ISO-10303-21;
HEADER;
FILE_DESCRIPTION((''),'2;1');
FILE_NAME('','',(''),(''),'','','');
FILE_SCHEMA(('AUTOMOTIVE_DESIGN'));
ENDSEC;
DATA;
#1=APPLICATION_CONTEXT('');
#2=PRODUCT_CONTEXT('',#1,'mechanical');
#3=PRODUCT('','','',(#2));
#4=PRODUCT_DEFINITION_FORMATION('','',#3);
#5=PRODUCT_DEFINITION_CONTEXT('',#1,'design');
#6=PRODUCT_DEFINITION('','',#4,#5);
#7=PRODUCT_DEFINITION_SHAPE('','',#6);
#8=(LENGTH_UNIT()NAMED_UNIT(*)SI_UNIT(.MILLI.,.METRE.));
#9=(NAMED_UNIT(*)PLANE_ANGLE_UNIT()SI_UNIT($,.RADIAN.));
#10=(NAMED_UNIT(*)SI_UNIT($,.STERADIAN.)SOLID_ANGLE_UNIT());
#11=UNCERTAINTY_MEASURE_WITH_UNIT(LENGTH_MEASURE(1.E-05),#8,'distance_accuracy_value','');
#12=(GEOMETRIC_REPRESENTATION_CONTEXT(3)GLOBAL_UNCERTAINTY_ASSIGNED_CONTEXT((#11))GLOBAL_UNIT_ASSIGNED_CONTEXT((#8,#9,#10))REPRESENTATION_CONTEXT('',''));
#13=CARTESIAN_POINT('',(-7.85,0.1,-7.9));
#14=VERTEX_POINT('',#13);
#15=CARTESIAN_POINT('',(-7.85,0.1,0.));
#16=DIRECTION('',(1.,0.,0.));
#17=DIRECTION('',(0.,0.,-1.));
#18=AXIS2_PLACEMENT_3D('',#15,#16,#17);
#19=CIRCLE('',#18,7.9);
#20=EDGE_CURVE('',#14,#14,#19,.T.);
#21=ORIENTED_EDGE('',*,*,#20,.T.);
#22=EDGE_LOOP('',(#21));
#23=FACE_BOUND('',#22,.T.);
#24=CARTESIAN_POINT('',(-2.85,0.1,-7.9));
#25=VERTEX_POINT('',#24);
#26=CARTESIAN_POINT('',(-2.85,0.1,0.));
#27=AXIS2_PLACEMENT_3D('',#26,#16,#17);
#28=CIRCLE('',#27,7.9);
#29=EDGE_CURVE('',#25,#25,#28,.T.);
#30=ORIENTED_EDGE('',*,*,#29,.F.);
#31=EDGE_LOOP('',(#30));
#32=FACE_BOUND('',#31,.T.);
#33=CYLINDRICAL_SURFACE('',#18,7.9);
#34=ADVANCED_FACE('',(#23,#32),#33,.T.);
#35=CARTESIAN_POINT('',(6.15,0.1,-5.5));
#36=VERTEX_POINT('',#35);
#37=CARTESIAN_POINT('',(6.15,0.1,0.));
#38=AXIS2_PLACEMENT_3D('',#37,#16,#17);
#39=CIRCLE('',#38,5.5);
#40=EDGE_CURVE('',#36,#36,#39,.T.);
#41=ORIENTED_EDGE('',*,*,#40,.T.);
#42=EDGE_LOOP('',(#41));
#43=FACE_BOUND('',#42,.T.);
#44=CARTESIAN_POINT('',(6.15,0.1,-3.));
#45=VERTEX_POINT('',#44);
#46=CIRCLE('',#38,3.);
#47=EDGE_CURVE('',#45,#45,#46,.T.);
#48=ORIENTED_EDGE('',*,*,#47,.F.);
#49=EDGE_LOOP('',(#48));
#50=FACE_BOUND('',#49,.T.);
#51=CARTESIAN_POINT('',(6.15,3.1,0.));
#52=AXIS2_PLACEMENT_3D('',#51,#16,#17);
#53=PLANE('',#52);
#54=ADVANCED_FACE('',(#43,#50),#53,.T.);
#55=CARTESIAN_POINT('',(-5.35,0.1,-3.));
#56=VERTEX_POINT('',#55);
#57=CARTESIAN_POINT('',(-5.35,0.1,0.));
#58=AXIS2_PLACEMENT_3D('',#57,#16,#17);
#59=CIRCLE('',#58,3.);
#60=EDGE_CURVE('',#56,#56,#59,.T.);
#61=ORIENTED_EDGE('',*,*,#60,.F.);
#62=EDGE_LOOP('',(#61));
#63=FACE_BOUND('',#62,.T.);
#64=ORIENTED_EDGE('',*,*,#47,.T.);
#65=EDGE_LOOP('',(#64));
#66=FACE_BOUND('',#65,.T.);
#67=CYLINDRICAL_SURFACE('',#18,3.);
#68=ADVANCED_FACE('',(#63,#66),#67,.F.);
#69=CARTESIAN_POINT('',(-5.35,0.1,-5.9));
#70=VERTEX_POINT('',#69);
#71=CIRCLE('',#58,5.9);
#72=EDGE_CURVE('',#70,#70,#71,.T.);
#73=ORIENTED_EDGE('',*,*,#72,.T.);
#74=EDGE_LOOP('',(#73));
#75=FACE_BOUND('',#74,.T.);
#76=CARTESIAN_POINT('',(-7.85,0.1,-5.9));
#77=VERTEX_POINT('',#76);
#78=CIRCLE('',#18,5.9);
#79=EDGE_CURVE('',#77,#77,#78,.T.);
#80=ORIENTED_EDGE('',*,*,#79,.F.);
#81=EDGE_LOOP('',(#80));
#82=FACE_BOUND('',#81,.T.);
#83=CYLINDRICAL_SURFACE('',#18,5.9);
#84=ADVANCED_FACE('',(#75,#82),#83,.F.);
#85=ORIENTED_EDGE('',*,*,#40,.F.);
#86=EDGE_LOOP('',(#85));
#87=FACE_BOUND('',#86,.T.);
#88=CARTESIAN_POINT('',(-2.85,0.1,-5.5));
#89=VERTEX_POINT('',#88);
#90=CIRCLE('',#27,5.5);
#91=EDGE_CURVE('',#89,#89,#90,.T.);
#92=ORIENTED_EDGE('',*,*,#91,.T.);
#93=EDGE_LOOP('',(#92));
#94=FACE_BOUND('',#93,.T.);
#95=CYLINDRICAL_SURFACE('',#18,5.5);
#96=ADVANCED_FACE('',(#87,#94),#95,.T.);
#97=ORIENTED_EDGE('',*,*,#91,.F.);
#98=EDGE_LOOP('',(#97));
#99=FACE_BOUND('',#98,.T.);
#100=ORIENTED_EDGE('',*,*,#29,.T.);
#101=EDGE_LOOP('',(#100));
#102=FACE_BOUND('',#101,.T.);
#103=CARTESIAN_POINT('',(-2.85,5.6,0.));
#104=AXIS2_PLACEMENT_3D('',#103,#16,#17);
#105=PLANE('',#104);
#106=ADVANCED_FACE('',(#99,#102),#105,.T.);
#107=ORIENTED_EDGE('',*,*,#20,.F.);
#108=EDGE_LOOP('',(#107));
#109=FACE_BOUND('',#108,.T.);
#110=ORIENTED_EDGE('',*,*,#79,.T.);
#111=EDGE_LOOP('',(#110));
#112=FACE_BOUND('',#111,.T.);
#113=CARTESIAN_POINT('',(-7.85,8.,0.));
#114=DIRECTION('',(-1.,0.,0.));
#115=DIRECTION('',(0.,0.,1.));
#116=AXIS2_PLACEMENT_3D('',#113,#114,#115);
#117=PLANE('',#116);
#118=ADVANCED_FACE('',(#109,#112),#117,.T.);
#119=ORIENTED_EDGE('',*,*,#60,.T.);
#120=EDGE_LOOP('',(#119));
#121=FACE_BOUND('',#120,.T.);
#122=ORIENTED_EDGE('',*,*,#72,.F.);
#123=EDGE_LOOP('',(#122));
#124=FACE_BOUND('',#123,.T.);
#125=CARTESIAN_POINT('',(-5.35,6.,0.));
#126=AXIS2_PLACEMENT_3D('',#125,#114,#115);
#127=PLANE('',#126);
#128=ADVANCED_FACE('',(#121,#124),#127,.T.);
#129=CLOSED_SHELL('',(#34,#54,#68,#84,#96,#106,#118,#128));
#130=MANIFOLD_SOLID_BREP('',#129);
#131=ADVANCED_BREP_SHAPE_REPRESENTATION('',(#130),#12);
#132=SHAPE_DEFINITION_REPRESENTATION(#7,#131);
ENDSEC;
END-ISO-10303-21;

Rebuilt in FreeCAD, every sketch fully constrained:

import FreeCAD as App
import Part
import Sketcher

doc = App.newDocument("Part")
params = doc.addObject("Spreadsheet::Sheet", "Params")
for row, (alias, value) in enumerate([
    ("sketch1_width", "5 mm"),
    ("sketch1_width2", "9 mm"),
    ("sketch1_height", "2 mm"),
    ("sketch1_width3", "2.5 mm"),
    ("sketch1_height2", "2.4 mm"),
    ("revolution_angle", "360 deg"),
], start=1):
    params.set(f"A{row}", alias)
    params.set(f"B{row}", "=" + value)
    params.setAlias(f"B{row}", alias)

body = doc.addObject("PartDesign::Body", "Body")

# Sketch on XY plane
sketch1 = body.newObject("Sketcher::SketchObject", "Sketch")
sketch1.AttachmentSupport = (doc.getObject("XY_Plane"), [""])
sketch1.MapMode = "FlatFace"
sketch1.addGeometry([
    Part.LineSegment(App.Vector(-2.9, 5.6, 0), App.Vector(-2.9, 8, 0)),  # 0
    Part.LineSegment(App.Vector(-2.9, 8, 0), App.Vector(-7.8, 8, 0)),  # 1
    Part.LineSegment(App.Vector(-7.8, 8, 0), App.Vector(-7.8, 6, 0)),  # 2
    Part.LineSegment(App.Vector(-7.8, 6, 0), App.Vector(-5.3, 6, 0)),  # 3
    Part.LineSegment(App.Vector(-5.3, 6, 0), App.Vector(-5.3, 3.1, 0)),  # 4
    Part.LineSegment(App.Vector(-5.3, 3.1, 0), App.Vector(6.2, 3.1, 0)),  # 5
    Part.LineSegment(App.Vector(6.2, 3.1, 0), App.Vector(6.2, 5.6, 0)),  # 6
    Part.LineSegment(App.Vector(6.2, 5.6, 0), App.Vector(-2.9, 5.6, 0)),  # 7
], False)
sketch1.addGeometry(Part.LineSegment(App.Vector(-7.8, 0.1, 0), App.Vector(6.2, 0.1, 0)), True)  # axis
sketch1.addConstraint([
    Sketcher.Constraint("Coincident", 0, 2, 1, 1),
    Sketcher.Constraint("Coincident", 1, 2, 2, 1),
    Sketcher.Constraint("Coincident", 2, 2, 3, 1),
    Sketcher.Constraint("Coincident", 3, 2, 4, 1),
    Sketcher.Constraint("Coincident", 4, 2, 5, 1),
    Sketcher.Constraint("Coincident", 5, 2, 6, 1),
    Sketcher.Constraint("Coincident", 6, 2, 7, 1),
    Sketcher.Constraint("Coincident", 7, 2, 0, 1),
    Sketcher.Constraint("Vertical", 0),
    Sketcher.Constraint("Horizontal", 1),
    Sketcher.Constraint("Vertical", 2),
    Sketcher.Constraint("Horizontal", 3),
    Sketcher.Constraint("Vertical", 4),
    Sketcher.Constraint("Horizontal", 5),
    Sketcher.Constraint("Vertical", 6),
    Sketcher.Constraint("Horizontal", 7),
    Sketcher.Constraint("Horizontal", 8),
    Sketcher.Constraint("Vertical", 2, 2, 8, 1),
    Sketcher.Constraint("Vertical", 6, 2, 8, 2),
    Sketcher.Constraint("Equal", 3, 6),
    Sketcher.Constraint("DistanceX", 1, 2, 1, 1, 5.0),
    Sketcher.Constraint("DistanceX", 7, 2, 7, 1, 9.0),
    Sketcher.Constraint("DistanceY", 2, 2, 2, 1, 2.0),
    Sketcher.Constraint("DistanceX", 3, 1, 3, 2, 2.5),
    Sketcher.Constraint("DistanceY", 0, 1, 0, 2, 2.4),
    Sketcher.Constraint("DistanceY", -1, 1, 0, 2, 8.0),
    Sketcher.Constraint("DistanceY", 8, 1, 4, 2, 3.0),
    Sketcher.Constraint("DistanceX", 0, 2, -1, 1, 2.85),
])
sketch1.setExpression("Constraints[20]", "Params.sketch1_width")
sketch1.setExpression("Constraints[21]", "Params.sketch1_width2")
sketch1.setExpression("Constraints[22]", "Params.sketch1_height")
sketch1.setExpression("Constraints[23]", "Params.sketch1_width3")
sketch1.setExpression("Constraints[24]", "Params.sketch1_height2")
revolution = body.newObject("PartDesign::Revolution", "Revolution")
revolution.Profile = sketch1
revolution.ReferenceAxis = (sketch1, ["Axis0"])
revolution.setExpression("Angle", "Params.revolution_angle")

doc.recompute()
